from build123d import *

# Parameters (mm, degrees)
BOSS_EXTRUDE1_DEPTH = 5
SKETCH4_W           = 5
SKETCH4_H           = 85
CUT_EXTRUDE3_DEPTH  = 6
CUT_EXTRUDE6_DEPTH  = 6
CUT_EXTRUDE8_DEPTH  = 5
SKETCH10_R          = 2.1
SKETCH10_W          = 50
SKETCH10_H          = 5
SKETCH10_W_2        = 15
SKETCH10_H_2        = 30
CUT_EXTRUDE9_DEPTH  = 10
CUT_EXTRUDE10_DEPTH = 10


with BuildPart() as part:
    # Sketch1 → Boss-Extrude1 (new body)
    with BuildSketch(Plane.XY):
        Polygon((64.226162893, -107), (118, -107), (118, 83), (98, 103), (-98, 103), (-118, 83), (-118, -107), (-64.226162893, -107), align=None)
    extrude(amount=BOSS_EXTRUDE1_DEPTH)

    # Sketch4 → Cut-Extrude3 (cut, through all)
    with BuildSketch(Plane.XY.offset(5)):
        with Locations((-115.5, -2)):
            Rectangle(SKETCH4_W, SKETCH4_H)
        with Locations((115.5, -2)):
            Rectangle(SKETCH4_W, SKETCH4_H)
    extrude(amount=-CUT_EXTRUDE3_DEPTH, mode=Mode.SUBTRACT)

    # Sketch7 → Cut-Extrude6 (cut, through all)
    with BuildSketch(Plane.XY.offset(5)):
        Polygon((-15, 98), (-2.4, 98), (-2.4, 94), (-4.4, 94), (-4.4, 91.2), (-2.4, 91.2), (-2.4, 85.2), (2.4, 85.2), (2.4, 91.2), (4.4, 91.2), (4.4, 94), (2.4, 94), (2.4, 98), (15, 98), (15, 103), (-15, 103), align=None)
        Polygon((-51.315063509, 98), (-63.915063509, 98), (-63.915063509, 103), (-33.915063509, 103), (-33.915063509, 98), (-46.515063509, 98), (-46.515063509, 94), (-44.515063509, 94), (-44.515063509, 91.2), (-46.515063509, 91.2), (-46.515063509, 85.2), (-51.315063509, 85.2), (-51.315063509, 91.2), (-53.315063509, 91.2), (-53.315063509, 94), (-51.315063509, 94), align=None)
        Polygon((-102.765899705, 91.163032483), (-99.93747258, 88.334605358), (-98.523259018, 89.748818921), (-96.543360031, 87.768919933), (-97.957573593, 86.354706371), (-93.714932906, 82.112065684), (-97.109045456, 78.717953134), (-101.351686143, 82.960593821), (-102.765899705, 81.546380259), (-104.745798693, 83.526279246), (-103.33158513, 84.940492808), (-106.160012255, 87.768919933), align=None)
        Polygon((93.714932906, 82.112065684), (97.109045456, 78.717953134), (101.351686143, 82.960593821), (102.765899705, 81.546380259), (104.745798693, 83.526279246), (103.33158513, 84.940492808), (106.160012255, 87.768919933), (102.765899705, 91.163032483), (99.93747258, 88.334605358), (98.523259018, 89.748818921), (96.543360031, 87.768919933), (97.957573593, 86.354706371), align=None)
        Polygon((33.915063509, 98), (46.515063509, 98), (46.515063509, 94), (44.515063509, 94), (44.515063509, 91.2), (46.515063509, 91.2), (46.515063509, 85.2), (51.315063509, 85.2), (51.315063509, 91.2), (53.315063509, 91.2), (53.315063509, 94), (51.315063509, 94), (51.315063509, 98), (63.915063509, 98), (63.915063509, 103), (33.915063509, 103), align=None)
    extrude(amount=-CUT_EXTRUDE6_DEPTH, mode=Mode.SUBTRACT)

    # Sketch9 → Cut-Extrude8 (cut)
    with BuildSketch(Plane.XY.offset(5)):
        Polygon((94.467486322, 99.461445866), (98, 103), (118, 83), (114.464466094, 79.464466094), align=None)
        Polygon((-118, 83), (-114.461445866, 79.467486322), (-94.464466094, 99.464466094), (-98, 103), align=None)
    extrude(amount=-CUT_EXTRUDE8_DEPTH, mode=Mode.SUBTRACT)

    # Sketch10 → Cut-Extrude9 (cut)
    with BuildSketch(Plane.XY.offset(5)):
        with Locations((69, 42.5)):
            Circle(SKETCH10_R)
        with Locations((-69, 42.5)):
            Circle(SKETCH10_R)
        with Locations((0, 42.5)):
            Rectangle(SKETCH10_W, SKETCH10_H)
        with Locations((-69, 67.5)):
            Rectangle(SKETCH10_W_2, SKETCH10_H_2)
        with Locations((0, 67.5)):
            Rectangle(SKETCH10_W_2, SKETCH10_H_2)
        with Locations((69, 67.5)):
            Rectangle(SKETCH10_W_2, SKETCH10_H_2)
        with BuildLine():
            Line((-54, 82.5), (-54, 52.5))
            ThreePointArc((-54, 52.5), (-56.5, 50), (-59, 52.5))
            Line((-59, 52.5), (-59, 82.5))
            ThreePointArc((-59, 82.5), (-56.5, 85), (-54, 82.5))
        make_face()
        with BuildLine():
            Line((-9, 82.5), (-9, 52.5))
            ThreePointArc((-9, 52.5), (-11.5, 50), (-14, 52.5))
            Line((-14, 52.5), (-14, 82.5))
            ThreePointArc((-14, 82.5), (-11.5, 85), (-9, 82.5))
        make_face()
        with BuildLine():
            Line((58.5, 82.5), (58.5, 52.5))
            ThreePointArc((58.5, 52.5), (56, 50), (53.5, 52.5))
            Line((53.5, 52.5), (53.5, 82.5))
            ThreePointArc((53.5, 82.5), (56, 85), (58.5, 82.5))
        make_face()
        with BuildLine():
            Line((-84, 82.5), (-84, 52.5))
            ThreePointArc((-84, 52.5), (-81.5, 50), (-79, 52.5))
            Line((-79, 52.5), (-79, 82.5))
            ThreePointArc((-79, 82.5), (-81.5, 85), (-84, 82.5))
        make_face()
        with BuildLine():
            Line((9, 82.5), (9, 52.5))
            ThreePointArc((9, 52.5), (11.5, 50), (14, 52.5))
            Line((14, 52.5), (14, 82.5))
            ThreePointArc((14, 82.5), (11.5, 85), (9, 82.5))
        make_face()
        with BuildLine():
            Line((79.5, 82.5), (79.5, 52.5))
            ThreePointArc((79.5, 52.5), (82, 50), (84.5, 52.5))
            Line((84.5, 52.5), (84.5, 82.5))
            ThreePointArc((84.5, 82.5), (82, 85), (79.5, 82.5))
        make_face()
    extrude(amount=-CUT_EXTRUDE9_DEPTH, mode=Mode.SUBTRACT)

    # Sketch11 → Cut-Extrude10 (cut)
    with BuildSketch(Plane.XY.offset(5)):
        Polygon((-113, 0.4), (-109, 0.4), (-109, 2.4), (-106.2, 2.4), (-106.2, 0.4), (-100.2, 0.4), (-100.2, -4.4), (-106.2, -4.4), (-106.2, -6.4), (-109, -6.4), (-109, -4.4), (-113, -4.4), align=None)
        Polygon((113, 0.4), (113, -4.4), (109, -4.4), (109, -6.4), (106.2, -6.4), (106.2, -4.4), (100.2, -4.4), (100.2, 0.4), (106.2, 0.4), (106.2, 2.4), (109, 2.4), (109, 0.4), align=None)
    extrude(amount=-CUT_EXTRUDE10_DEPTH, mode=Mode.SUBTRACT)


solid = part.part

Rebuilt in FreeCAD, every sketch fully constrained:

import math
import FreeCAD as App
import Part
import Sketcher

V = App.Vector
Q = App.Units.Quantity


def add_polygon(sketch, points):
    """Adds a closed chain of lines whose ends are joined by coincident constraints."""
    first, n = sketch.GeometryCount, len(points)
    for a, b in zip(points, points[1:] + points[:1]):
        sketch.addGeometry(Part.LineSegment(App.Vector(*a, 0), App.Vector(*b, 0)), False)
    for i in range(n):
        sketch.addConstraint(Sketcher.Constraint("Coincident", first + i, 2, first + (i + 1) % n, 1))

doc = App.newDocument("Part")
params = doc.addObject("Spreadsheet::Sheet", "Params")
for row, (alias, value) in enumerate([
    ("sketch1_width", "196 mm"),
    ("sketch1_width2", "236 mm"),
    ("sketch1_height", "190 mm"),
    ("pad1_length", "5 mm"),
    ("sketch2_width", "5 mm"),
    ("sketch2_height", "85 mm"),
    ("sketch3_width", "2 mm"),
    ("sketch3_width2", "30 mm"),
    ("sketch3_height", "4 mm"),
    ("sketch3_height2", "6 mm"),
    ("sketch3_height3", "5 mm"),
    ("sketch4_length", "5.000002 mm"),
    ("sketch4_length2", "28.28 mm"),
    ("pocket3_length", "5 mm"),
    ("sketch5_diameter", "4.2 mm"),
    ("sketch5_radius", "2.5 mm"),
    ("sketch5_width", "50 mm"),
    ("sketch5_width2", "15 mm"),
    ("sketch5_height", "5 mm"),
    ("pocket4_length", "10 mm"),
    ("sketch6_width", "4 mm"),
    ("sketch6_width2", "6 mm"),
    ("sketch6_height", "2 mm"),
    ("sketch6_width3", "2.8 mm"),
    ("sketch6_height2", "4.8 mm"),
    ("pocket5_length", "10 mm"),
], start=1):
    params.set(f"A{row}", alias)
    params.set(f"B{row}", "=" + value)
    params.setAlias(f"B{row}", alias)

body = doc.addObject("PartDesign::Body", "Body")

sketch1 = doc.addObject("Sketcher::SketchObject", "Sketch")
body.addObject(sketch1)
sketch1.AttachmentSupport = (doc.XY_Plane, [""])
sketch1.MapMode = "FlatFace"
add_polygon(sketch1, [(118, -107), (118, 83), (98, 103), (-98, 103), (-118, 83), (-118, -107)])
sketch1.addConstraint([
    Sketcher.Constraint("Vertical", 0),
    Sketcher.Constraint("Horizontal", 2),
    Sketcher.Constraint("Vertical", 4),
    Sketcher.Constraint("Horizontal", 5),
    Sketcher.Constraint("Symmetric", 0, 2, 3, 2, -2),
    Sketcher.Constraint("Perpendicular", 1, 3),
    Sketcher.Constraint("Equal", 1, 3),
    Sketcher.Constraint("DistanceX", 2, 2, 2, 1, Q("196 mm")),
    Sketcher.Constraint("DistanceX", 5, 1, 5, 2, Q("236 mm")),
    Sketcher.Constraint("DistanceY", 0, 1, 0, 2, Q("190 mm")),
    Sketcher.Constraint("DistanceY", -1, 1, 0, 2, Q("83 mm")),
])
sketch1.setExpression("Constraints[13]", "Params.sketch1_width")
sketch1.setExpression("Constraints[14]", "Params.sketch1_width2")
sketch1.setExpression("Constraints[15]", "Params.sketch1_height")
pad1 = doc.addObject("PartDesign::Pad", "Pad")
body.addObject(pad1)
pad1.Profile = sketch1
pad1.setExpression("Length", "Params.pad1_length")

sketch2 = doc.addObject("Sketcher::SketchObject", "Sketch001")
body.addObject(sketch2)
sketch2.AttachmentSupport = (doc.XY_Plane, [""])
sketch2.MapMode = "FlatFace"
sketch2.AttachmentOffset = App.Placement(V(0, 0, 5), App.Rotation())
add_polygon(sketch2, [(-118, 40), (-118, -44), (-113, -44), (-113, 40)])
add_polygon(sketch2, [(113, 40), (113, -44), (118, -44), (118, 40)])
sketch2.addConstraint([
    Sketcher.Constraint("Vertical", 0),
    Sketcher.Constraint("Horizontal", 1),
    Sketcher.Constraint("Vertical", 2),
    Sketcher.Constraint("Horizontal", 3),
    Sketcher.Constraint("Vertical", 4),
    Sketcher.Constraint("Horizontal", 5),
    Sketcher.Constraint("Vertical", 6),
    Sketcher.Constraint("Horizontal", 7),
    Sketcher.Constraint("Symmetric", 1, 2, 4, 2, -2),
    Sketcher.Constraint("Symmetric", 3, 2, 6, 2, -2),
    Sketcher.Constraint("DistanceX", 1, 1, 1, 2, Q("5 mm")),
    Sketcher.Constraint("DistanceY", 0, 2, 0, 1, Q("85 mm")),
    Sketcher.Constraint("DistanceX", 0, 2, -1, 1, Q("118 mm")),
    Sketcher.Constraint("DistanceY", 0, 2, -1, 1, Q("44.5 mm")),
])
sketch2.setExpression("Constraints[18]", "Params.sketch2_width")
sketch2.setExpression("Constraints[19]", "Params.sketch2_height")
pocket1 = doc.addObject("PartDesign::Pocket", "Pocket")
body.addObject(pocket1)
pocket1.Profile = sketch2
pocket1.Type = "ThroughAll"

sketch3 = doc.addObject("Sketcher::SketchObject", "Sketch002")
body.addObject(sketch3)
sketch3.AttachmentSupport = (doc.XY_Plane, [""])
sketch3.MapMode = "FlatFace"
sketch3.AttachmentOffset = App.Placement(V(0, 0, 5), App.Rotation())
add_polygon(sketch3, [(-15, 98), (-2.4, 98), (-2.4, 94), (-4.4, 94), (-4.4, 91.2), (-2.4, 91.2), (-2.4, 85.2), (2.4, 85.2), (2.4, 91.2), (4.4, 91.2), (4.4, 94), (2.4, 94), (2.4, 98), (15, 98), (15, 103), (-15, 103)])
add_polygon(sketch3, [(-63.9, 98), (-51.3, 98), (-51.3, 94), (-53.3, 94), (-53.3, 91.2), (-51.3, 91.2), (-51.3, 85.2), (-46.5, 85.2), (-46.5, 91.2), (-44.5, 91.2), (-44.5, 94), (-46.5, 94), (-46.5, 98), (-33.9, 98), (-33.9, 103), (-63.9, 103)])
add_polygon(sketch3, [(-99.9, 88.3), (-102.8, 91.2), (-106.2, 87.8), (-103.3, 84.9), (-104.7, 83.5), (-102.8, 81.5), (-101.4, 83), (-97.1, 78.7), (-93.7, 82.1), (-98, 86.4), (-96.5, 87.8), (-98.5, 89.7)])
add_polygon(sketch3, [(93.7, 82.1), (97.1, 78.7), (101.4, 83), (102.8, 81.5), (104.7, 83.5), (103.3, 84.9), (106.2, 87.8), (102.8, 91.2), (99.9, 88.3), (98.5, 89.7), (96.5, 87.8), (98, 86.4)])
add_polygon(sketch3, [(33.9, 98), (46.5, 98), (46.5, 94), (44.5, 94), (44.5, 91.2), (46.5, 91.2), (46.5, 85.2), (51.3, 85.2), (51.3, 91.2), (53.3, 91.2), (53.3, 94), (51.3, 94), (51.3, 98), (63.9, 98), (63.9, 103), (33.9, 103)])
sketch3.addConstraint([
    Sketcher.Constraint("Horizontal", 0),
    Sketcher.Constraint("Vertical", 1),
    Sketcher.Constraint("Horizontal", 2),
    Sketcher.Constraint("Vertical", 3),
    Sketcher.Constraint("Horizontal", 4),
    Sketcher.Constraint("Vertical", 5),
    Sketcher.Constraint("Horizontal", 6),
    Sketcher.Constraint("Vertical", 7),
    Sketcher.Constraint("Horizontal", 8),
    Sketcher.Constraint("Vertical", 9),
    Sketcher.Constraint("Horizontal", 10),
    Sketcher.Constraint("Vertical", 11),
    Sketcher.Constraint("Horizontal", 12),
    Sketcher.Constraint("Vertical", 13),
    Sketcher.Constraint("Horizontal", 14),
    Sketcher.Constraint("Vertical", 15),
    Sketcher.Constraint("Horizontal", 16),
    Sketcher.Constraint("Vertical", 17),
    Sketcher.Constraint("Horizontal", 18),
    Sketcher.Constraint("Vertical", 19),
    Sketcher.Constraint("Horizontal", 20),
    Sketcher.Constraint("Vertical", 21),
    Sketcher.Constraint("Horizontal", 22),
    Sketcher.Constraint("Vertical", 23),
    Sketcher.Constraint("Horizontal", 24),
    Sketcher.Constraint("Vertical", 25),
    Sketcher.Constraint("Horizontal", 26),
    Sketcher.Constraint("Vertical", 27),
    Sketcher.Constraint("Horizontal", 28),
    Sketcher.Constraint("Vertical", 29),
    Sketcher.Constraint("Horizontal", 30),
    Sketcher.Constraint("Vertical", 31),
    Sketcher.Constraint("Horizontal", 56),
    Sketcher.Constraint("Vertical", 57),
    Sketcher.Constraint("Horizontal", 58),
    Sketcher.Constraint("Vertical", 59),
    Sketcher.Constraint("Horizontal", 60),
    Sketcher.Constraint("Vertical", 61),
    Sketcher.Constraint("Horizontal", 62),
    Sketcher.Constraint("Vertical", 63),
    Sketcher.Constraint("Horizontal", 64),
    Sketcher.Constraint("Vertical", 65),
    Sketcher.Constraint("Horizontal", 66),
    Sketcher.Constraint("Vertical", 67),
    Sketcher.Constraint("Horizontal", 68),
    Sketcher.Constraint("Vertical", 69),
    Sketcher.Constraint("Horizontal", 70),
    Sketcher.Constraint("Vertical", 71),
    Sketcher.Constraint("Symmetric", 4, 2, 7, 2, -2),
    Sketcher.Constraint("Symmetric", 2, 2, 9, 2, -2),
    Sketcher.Constraint("Symmetric", 0, 2, 11, 2, -2),
    Sketcher.Constraint("Symmetric", 38, 2, 44, 2, -2),
    Sketcher.Constraint("Symmetric", 37, 2, 45, 2, -2),
    Sketcher.Constraint("Symmetric", 36, 2, 46, 2, -2),
    Sketcher.Constraint("Symmetric", 35, 2, 47, 2, -2),
    Sketcher.Constraint("Symmetric", 34, 2, 48, 2, -2),
    Sketcher.Constraint("Symmetric", 33, 2, 49, 2, -2),
    Sketcher.Constraint("Symmetric", 32, 2, 50, 2, -2),
    Sketcher.Constraint("Symmetric", 43, 2, 51, 2, -2),
    Sketcher.Constraint("Symmetric", 42, 2, 52, 2, -2),
    Sketcher.Constraint("Symmetric", 41, 2, 53, 2, -2),
    Sketcher.Constraint("Symmetric", 40, 2, 54, 2, -2),
    Sketcher.Constraint("Symmetric", 39, 2, 55, 2, -2),
    Sketcher.Constraint("Symmetric", 27, 2, 56, 2, -2),
    Sketcher.Constraint("Symmetric", 25, 2, 58, 2, -2),
    Sketcher.Constraint("Symmetric", 23, 2, 60, 2, -2),
    Sketcher.Constraint("Symmetric", 21, 2, 62, 2, -2),
    Sketcher.Constraint("Symmetric", 19, 2, 64, 2, -2),
    Sketcher.Constraint("Symmetric", 17, 2, 66, 2, -2),
    Sketcher.Constraint("Symmetric", 31, 2, 68, 2, -2),
    Sketcher.Constraint("Symmetric", 29, 2, 70, 2, -2),
    Sketcher.Constraint("Perpendicular", 32, 33),
    Sketcher.Constraint("Perpendicular", 33, 34),
    Sketcher.Constraint("Perpendicular", 34, 35),
    Sketcher.Constraint("Perpendicular", 35, 36),
    Sketcher.Constraint("Perpendicular", 36, 37),
    Sketcher.Constraint("Perpendicular", 37, 38),
    Sketcher.Constraint("Perpendicular", 38, 39),
    Sketcher.Constraint("Perpendicular", 39, 40),
    Sketcher.Constraint("Perpendicular", 40, 41),
    Sketcher.Constraint("Perpendicular", 41, 42),
    Sketcher.Constraint("Perpendicular", 42, 43),
    Sketcher.Constraint("Perpendicular", 43, 44),
    Sketcher.Constraint("Horizontal", 15, 2, 16, 2),
    Sketcher.Constraint("Horizontal", 10, 2, 17, 2),
    Sketcher.Constraint("Horizontal", 8, 2, 19, 2),
    Sketcher.Constraint("Horizontal", 6, 2, 21, 2),
    Sketcher.Constraint("Horizontal", 20, 2, 23, 2),
    Sketcher.Constraint("Horizontal", 18, 2, 25, 2),
    Sketcher.Constraint("Horizontal", 16, 2, 27, 2),
    Sketcher.Constraint("Horizontal", 14, 2, 29, 2),
    Sketcher.Constraint("Horizontal", 33, 2, 41, 2),
    Sketcher.Constraint("Vertical", 1, 2, 4, 2),
    Sketcher.Constraint("Vertical", 17, 2, 20, 2),
    Sketcher.Constraint("Vertical", 23, 2, 26, 2),
    Sketcher.Constraint("Vertical", 32, 2, 36, 2),
    Sketcher.Constraint("Equal", 0, 12),
    Sketcher.Constraint("Equal", 12, 16),
    Sketcher.Constraint("Equal", 10, 18),
    Sketcher.Constraint("Equal", 6, 22),
    Sketcher.Constraint("Equal", 20, 24),
    Sketcher.Constraint("Equal", 16, 28),
    Sketcher.Constraint("Equal", 32, 34),
    Sketcher.Constraint("Equal", 35, 37),
    Sketcher.Constraint("Equal", 33, 39),
    Sketcher.Constraint("Equal", 38, 40),
    Sketcher.Constraint("DistanceX", 2, 2, 2, 1, Q("2 mm")),
    Sketcher.Constraint("DistanceX", 14, 2, 14, 1, Q("30 mm")),
    Sketcher.Constraint("DistanceY", 1, 2, 1, 1, Q("4 mm")),
    Sketcher.Constraint("DistanceY", 5, 2, 5, 1, Q("6 mm")),
    Sketcher.Constraint("DistanceY", 13, 1, 13, 2, Q("5 mm")),
    Sketcher.Constraint("Distance", 32, Q("4 mm")),
    Sketcher.Constraint("Distance", 35, Q("2 mm")),
    Sketcher.Constraint("Distance", 38, Q("6 mm")),
    Sketcher.Constraint("DistanceX", 0, 1, 0, 2, Q("12.6 mm")),
    Sketcher.Constraint("DistanceY", 3, 2, 3, 1, Q("2.8 mm")),
    Sketcher.Constraint("DistanceY", -1, 1, 0, 2, Q("98 mm")),
    Sketcher.Constraint("Distance", 33, Q("4.8 mm")),
    Sketcher.Constraint("DistanceX", 32, 2, -1, 1, Q("102.7659 mm")),
    Sketcher.Constraint("DistanceY", -1, 1, 33, 2, Q("87.76892 mm")),
    Sketcher.Constraint("DistanceX", 16, 2, -1, 1, Q("51.315064 mm")),
])
sketch3.setExpression("Constraints[178]", "Params.sketch3_width")
sketch3.setExpression("Constraints[179]", "Params.sketch3_width2")
sketch3.setExpression("Constraints[180]", "Params.sketch3_height")
sketch3.setExpression("Constraints[181]", "Params.sketch3_height2")
sketch3.setExpression("Constraints[182]", "Params.sketch3_height3")
pocket2 = doc.addObject("PartDesign::Pocket", "Pocket001")
body.addObject(pocket2)
pocket2.Profile = sketch3
pocket2.Type = "ThroughAll"

sketch4 = doc.addObject("Sketcher::SketchObject", "Sketch003")
body.addObject(sketch4)
sketch4.AttachmentSupport = (doc.XY_Plane, [""])
sketch4.MapMode = "FlatFace"
sketch4.AttachmentOffset = App.Placement(V(0, 0, 5), App.Rotation())
add_polygon(sketch4, [(98, 103), (94, 99), (114, 79), (118, 83)])
add_polygon(sketch4, [(-118, 83), (-114, 79), (-94, 99), (-98, 103)])
sketch4.addConstraint([
    Sketcher.Constraint("Symmetric", 3, 2, 6, 2, -2),
    Sketcher.Constraint("Symmetric", 2, 2, 7, 2, -2),
    Sketcher.Constraint("Perpendicular", 1, 2),
    Sketcher.Constraint("Perpendicular", 2, 3),
    Sketcher.Constraint("Perpendicular", 0, 4),
    Sketcher.Constraint("Perpendicular", 3, 5),
    Sketcher.Constraint("Perpendicular", 5, 6),
    Sketcher.Constraint("Perpendicular", 6, 7),
    Sketcher.Constraint("Equal", 2, 4),
    Sketcher.Constraint("Distance", 0, Q("5.000002 mm")),
    Sketcher.Constraint("DistanceX", -1, 1, 2, 2, Q("118 mm")),
    Sketcher.Constraint("DistanceY", -1, 1, 2, 2, Q("83 mm")),
    Sketcher.Constraint("DistanceX", -1, 1, 3, 2, Q("98 mm")),
    Sketcher.Constraint("Distance", 1, Q("28.28 mm")),
])
sketch4.setExpression("Constraints[17]", "Params.sketch4_length")
sketch4.setExpression("Constraints[21]", "Params.sketch4_length2")
pocket3 = doc.addObject("PartDesign::Pocket", "Pocket002")
body.addObject(pocket3)
pocket3.Profile = sketch4
pocket3.setExpression("Length", "Params.pocket3_length")

sketch5 = doc.addObject("Sketcher::SketchObject", "Sketch004")
body.addObject(sketch5)
sketch5.AttachmentSupport = (doc.XY_Plane, [""])
sketch5.MapMode = "FlatFace"
sketch5.AttachmentOffset = App.Placement(V(0, 0, 5), App.Rotation())
sketch5.addGeometry(Part.Circle(V(69, 42.5, 0), V(0, 0, 1), 2.1), False)
sketch5.addGeometry(Part.Circle(V(-69, 42.5, 0), V(0, 0, 1), 2.1), False)
add_polygon(sketch5, [(-25, 45), (-25, 40), (25, 40), (25, 45)])
add_polygon(sketch5, [(-76.5, 82.5), (-76.5, 52.5), (-61.5, 52.5), (-61.5, 82.5)])
add_polygon(sketch5, [(-7.5, 82.5), (-7.5, 52.5), (7.5, 52.5), (7.5, 82.5)])
add_polygon(sketch5, [(61.5, 82.5), (61.5, 52.5), (76.5, 52.5), (76.5, 82.5)])
sketch5.addGeometry(Part.LineSegment(V(-54, 52.5, 0), V(-54, 82.5, 0)), False)
sketch5.addGeometry(Part.ArcOfCircle(Part.Circle(V(-56.5, 82.5, 0), V(0, 0, 1), 2.5), math.radians(0), math.radians(180)), False)
sketch5.addGeometry(Part.LineSegment(V(-59, 82.5, 0), V(-59, 52.5, 0)), False)
sketch5.addGeometry(Part.ArcOfCircle(Part.Circle(V(-56.5, 52.5, 0), V(0, 0, 1), 2.5), math.radians(180), math.radians(360)), False)
sketch5.addGeometry(Part.LineSegment(V(-9, 52.5, 0), V(-9, 82.5, 0)), False)
sketch5.addGeometry(Part.ArcOfCircle(Part.Circle(V(-11.5, 82.5, 0), V(0, 0, 1), 2.5), math.radians(0), math.radians(180)), False)
sketch5.addGeometry(Part.LineSegment(V(-14, 82.5, 0), V(-14, 52.5, 0)), False)
sketch5.addGeometry(Part.ArcOfCircle(Part.Circle(V(-11.5, 52.5, 0), V(0, 0, 1), 2.5), math.radians(180), math.radians(360)), False)
sketch5.addGeometry(Part.LineSegment(V(58.5, 52.5, 0), V(58.5, 82.5, 0)), False)
sketch5.addGeometry(Part.ArcOfCircle(Part.Circle(V(56, 82.5, 0), V(0, 0, 1), 2.5), math.radians(0), math.radians(180)), False)
sketch5.addGeometry(Part.LineSegment(V(53.5, 82.5, 0), V(53.5, 52.5, 0)), False)
sketch5.addGeometry(Part.ArcOfCircle(Part.Circle(V(56, 52.5, 0), V(0, 0, 1), 2.5), math.radians(180), math.radians(360)), False)
sketch5.addGeometry(Part.LineSegment(V(-84, 82.5, 0), V(-84, 52.5, 0)), False)
sketch5.addGeometry(Part.ArcOfCircle(Part.Circle(V(-81.5, 52.5, 0), V(0, 0, 1), 2.5), math.radians(180), math.radians(360)), False)
sketch5.addGeometry(Part.LineSegment(V(-79, 52.5, 0), V(-79, 82.5, 0)), False)
sketch5.addGeometry(Part.ArcOfCircle(Part.Circle(V(-81.5, 82.5, 0), V(0, 0, 1), 2.5), math.radians(0), math.radians(180)), False)
sketch5.addGeometry(Part.LineSegment(V(9, 82.5, 0), V(9, 52.5, 0)), False)
sketch5.addGeometry(Part.ArcOfCircle(Part.Circle(V(11.5, 52.5, 0), V(0, 0, 1), 2.5), math.radians(180), math.radians(360)), False)
sketch5.addGeometry(Part.LineSegment(V(14, 52.5, 0), V(14, 82.5, 0)), False)
sketch5.addGeometry(Part.ArcOfCircle(Part.Circle(V(11.5, 82.5, 0), V(0, 0, 1), 2.5), math.radians(0), math.radians(180)), False)
sketch5.addGeometry(Part.LineSegment(V(79.5, 82.5, 0), V(79.5, 52.5, 0)), False)
sketch5.addGeometry(Part.ArcOfCircle(Part.Circle(V(82, 52.5, 0), V(0, 0, 1), 2.5), math.radians(180), math.radians(360)), False)
sketch5.addGeometry(Part.LineSegment(V(84.5, 52.5, 0), V(84.5, 82.5, 0)), False)
sketch5.addGeometry(Part.ArcOfCircle(Part.Circle(V(82, 82.5, 0), V(0, 0, 1), 2.5), math.radians(0), math.radians(180)), False)
sketch5.addConstraint([
    Sketcher.Constraint("Tangent", 18, 2, 19, 1),
    Sketcher.Constraint("Tangent", 19, 2, 20, 1),
    Sketcher.Constraint("Tangent", 20, 2, 21, 1),
    Sketcher.Constraint("Tangent", 21, 2, 18, 1),
    Sketcher.Constraint("Tangent", 22, 2, 23, 1),
    Sketcher.Constraint("Tangent", 23, 2, 24, 1),
    Sketcher.Constraint("Tangent", 24, 2, 25, 1),
    Sketcher.Constraint("Tangent", 25, 2, 22, 1),
    Sketcher.Constraint("Tangent", 26, 2, 27, 1),
    Sketcher.Constraint("Tangent", 27, 2, 28, 1),
    Sketcher.Constraint("Tangent", 28, 2, 29, 1),
    Sketcher.Constraint("Tangent", 29, 2, 26, 1),
    Sketcher.Constraint("Tangent", 30, 2, 31, 1),
    Sketcher.Constraint("Tangent", 31, 2, 32, 1),
    Sketcher.Constraint("Tangent", 32, 2, 33, 1),
    Sketcher.Constraint("Tangent", 33, 2, 30, 1),
    Sketcher.Constraint("Tangent", 34, 2, 35, 1),
    Sketcher.Constraint("Tangent", 35, 2, 36, 1),
    Sketcher.Constraint("Tangent", 36, 2, 37, 1),
    Sketcher.Constraint("Tangent", 37, 2, 34, 1),
    Sketcher.Constraint("Tangent", 38, 2, 39, 1),
    Sketcher.Constraint("Tangent", 39, 2, 40, 1),
    Sketcher.Constraint("Tangent", 40, 2, 41, 1),
    Sketcher.Constraint("Tangent", 41, 2, 38, 1),
    Sketcher.Constraint("Vertical", 2),
    Sketcher.Constraint("Horizontal", 3),
    Sketcher.Constraint("Vertical", 4),
    Sketcher.Constraint("Horizontal", 5),
    Sketcher.Constraint("Vertical", 6),
    Sketcher.Constraint("Horizontal", 7),
    Sketcher.Constraint("Vertical", 8),
    Sketcher.Constraint("Horizontal", 9),
    Sketcher.Constraint("Vertical", 10),
    Sketcher.Constraint("Horizontal", 11),
    Sketcher.Constraint("Vertical", 12),
    Sketcher.Constraint("Horizontal", 13),
    Sketcher.Constraint("Vertical", 14),
    Sketcher.Constraint("Horizontal", 15),
    Sketcher.Constraint("Vertical", 16),
    Sketcher.Constraint("Horizontal", 17),
    Sketcher.Constraint("Vertical", 18),
    Sketcher.Constraint("Vertical", 20),
    Sketcher.Constraint("Vertical", 22),
    Sketcher.Constraint("Vertical", 24),
    Sketcher.Constraint("Vertical", 26),
    Sketcher.Constraint("Vertical", 28),
    Sketcher.Constraint("Vertical", 30),
    Sketcher.Constraint("Vertical", 32),
    Sketcher.Constraint("Vertical", 34),
    Sketcher.Constraint("Vertical", 36),
    Sketcher.Constraint("Vertical", 38),
    Sketcher.Constraint("Vertical", 40),
    Sketcher.Constraint("Equal", 0, 1),
    Sketcher.Constraint("Equal", 21, 23),
    Sketcher.Constraint("Equal", 25, 27),
    Sketcher.Constraint("Equal", 29, 31),
    Sketcher.Constraint("Equal", 33, 35),
    Sketcher.Constraint("Equal", 37, 39),
    Sketcher.Constraint("Symmetric", 0, 3, 1, 3, -2),
    Sketcher.Constraint("Symmetric", 25, 3, 35, 3, -2),
    Sketcher.Constraint("Symmetric", 7, 2, 14, 2, -2),
    Sketcher.Constraint("Symmetric", 9, 2, 16, 2, -2),
    Sketcher.Constraint("Horizontal", 19, 3, 23, 3),
    Sketcher.Constraint("Horizontal", 21, 3, 25, 3),
    Sketcher.Constraint("Horizontal", 23, 3, 27, 3),
    Sketcher.Constraint("Horizontal", 25, 3, 29, 3),
    Sketcher.Constraint("Horizontal", 29, 3, 31, 3),
    Sketcher.Constraint("Horizontal", 27, 3, 33, 3),
    Sketcher.Constraint("Horizontal", 33, 3, 37, 3),
    Sketcher.Constraint("Horizontal", 35, 3, 39, 3),
    Sketcher.Constraint("Horizontal", 37, 3, 41, 3),
    Sketcher.Constraint("Horizontal", 39, 3, 6, 2),
    Sketcher.Constraint("Horizontal", 41, 3, 8, 2),
    Sketcher.Constraint("Horizontal", 7, 2, 10, 2),
    Sketcher.Constraint("Horizontal", 9, 2, 12, 2),
    Sketcher.Constraint("Equal", 9, 11),
    Sketcher.Constraint("Diameter", 0, Q("4.2 mm")),
    Sketcher.Constraint("Radius", 19, Q("2.5 mm")),
    Sketcher.Constraint("DistanceX", 3, 1, 3, 2, Q("50 mm")),
    Sketcher.Constraint("DistanceX", 7, 1, 7, 2, Q("15 mm")),
    Sketcher.Constraint("DistanceY", 2, 2, 2, 1, Q("5 mm")),
    Sketcher.Constraint("DistanceY", 6, 2, 6, 1, Q("30 mm")),
    Sketcher.Constraint("DistanceX", -1, 1, 0, 3, Q("69 mm")),
    Sketcher.Constraint("DistanceX", -1, 1, 27, 3, Q("56 mm")),
    Sketcher.Constraint("DistanceX", -1, 1, 39, 3, Q("82 mm")),
    Sketcher.Constraint("DistanceX", 2, 2, -1, 1, Q("25 mm")),
    Sketcher.Constraint("DistanceY", -1, 1, 2, 2, Q("40 mm")),
    Sketcher.Constraint("DistanceX", 18, 2, -1, 1, Q("54 mm")),
    Sketcher.Constraint("DistanceX", 22, 2, -1, 1, Q("9 mm")),
    Sketcher.Constraint("DistanceX", 30, 2, -1, 1, Q("84 mm")),
    Sketcher.Constraint("DistanceY", 1, 3, 19, 3, Q("40 mm")),
    Sketcher.Constraint("DistanceX", 31, 3, 6, 2, Q("5 mm")),
    Sketcher.Constraint("DistanceX", 25, 3, 10, 2, Q("4 mm")),
    Sketcher.Constraint("DistanceY", -1, 1, 0, 3, Q("42.5 mm")),
])
sketch5.setExpression("Constraints[92]", "Params.sketch5_diameter")
sketch5.setExpression("Constraints[93]", "Params.sketch5_radius")
sketch5.setExpression("Constraints[94]", "Params.sketch5_width")
sketch5.setExpression("Constraints[95]", "Params.sketch5_width2")
sketch5.setExpression("Constraints[96]", "Params.sketch5_height")
pocket4 = doc.addObject("PartDesign::Pocket", "Pocket003")
body.addObject(pocket4)
pocket4.Profile = sketch5
pocket4.setExpression("Length", "Params.pocket4_length")

sketch6 = doc.addObject("Sketcher::SketchObject", "Sketch005")
body.addObject(sketch6)
sketch6.AttachmentSupport = (doc.XY_Plane, [""])
sketch6.MapMode = "FlatFace"
sketch6.AttachmentOffset = App.Placement(V(0, 0, 5), App.Rotation())
add_polygon(sketch6, [(-109, 0.4), (-113, 0.4), (-113, -4.4), (-109, -4.4), (-109, -6.4), (-106.2, -6.4), (-106.2, -4.4), (-100.2, -4.4), (-100.2, 0.4), (-106.2, 0.4), (-106.2, 2.4), (-109, 2.4)])
add_polygon(sketch6, [(113, -4.4), (113, 0.4), (109, 0.4), (109, 2.4), (106.2, 2.4), (106.2, 0.4), (100.2, 0.4), (100.2, -4.4), (106.2, -4.4), (106.2, -6.4), (109, -6.4), (109, -4.4)])
sketch6.addConstraint([
    Sketcher.Constraint("Horizontal", 0),
    Sketcher.Constraint("Vertical", 1),
    Sketcher.Constraint("Horizontal", 2),
    Sketcher.Constraint("Vertical", 3),
    Sketcher.Constraint("Horizontal", 4),
    Sketcher.Constraint("Vertical", 5),
    Sketcher.Constraint("Horizontal", 6),
    Sketcher.Constraint("Vertical", 7),
    Sketcher.Constraint("Horizontal", 8),
    Sketcher.Constraint("Vertical", 9),
    Sketcher.Constraint("Horizontal", 10),
    Sketcher.Constraint("Vertical", 11),
    Sketcher.Constraint("Vertical", 12),
    Sketcher.Constraint("Horizontal", 13),
    Sketcher.Constraint("Vertical", 14),
    Sketcher.Constraint("Horizontal", 15),
    Sketcher.Constraint("Vertical", 16),
    Sketcher.Constraint("Horizontal", 17),
    Sketcher.Constraint("Vertical", 18),
    Sketcher.Constraint("Horizontal", 19),
    Sketcher.Constraint("Vertical", 20),
    Sketcher.Constraint("Horizontal", 21),
    Sketcher.Constraint("Vertical", 22),
    Sketcher.Constraint("Horizontal", 23),
    Sketcher.Constraint("Symmetric", 0, 2, 12, 2, -2),
    Sketcher.Constraint("Symmetric", 10, 2, 14, 2, -2),
    Sketcher.Constraint("Symmetric", 8, 2, 16, 2, -2),
    Sketcher.Constraint("Symmetric", 6, 2, 18, 2, -2),
    Sketcher.Constraint("Symmetric", 4, 2, 20, 2, -2),
    Sketcher.Constraint("Symmetric", 2, 2, 22, 2, -2),
    Sketcher.Constraint("Horizontal", 2, 2, 5, 2),
    Sketcher.Constraint("Horizontal", 0, 2, 7, 2),
    Sketcher.Constraint("Vertical", 5, 2, 8, 2),
    Sketcher.Constraint("Vertical", 3, 2, 10, 2),
    Sketcher.Constraint("Equal", 5, 9),
    Sketcher.Constraint("DistanceX", 0, 2, 0, 1, Q("4 mm")),
    Sketcher.Constraint("DistanceX", 6, 1, 6, 2, Q("6 mm")),
    Sketcher.Constraint("DistanceY", 3, 2, 3, 1, Q("2 mm")),
    Sketcher.Constraint("DistanceX", 4, 1, 4, 2, Q("2.8 mm")),
    Sketcher.Constraint("DistanceY", 1, 2, 1, 1, Q("4.8 mm")),
    Sketcher.Constraint("DistanceX", 0, 2, -1, 1, Q("113 mm")),
    Sketcher.Constraint("DistanceY", -1, 1, 0, 2, Q("0.4 mm")),
])
sketch6.setExpression("Constraints[59]", "Params.sketch6_width")
sketch6.setExpression("Constraints[60]", "Params.sketch6_width2")
sketch6.setExpression("Constraints[61]", "Params.sketch6_height")
sketch6.setExpression("Constraints[62]", "Params.sketch6_width3")
sketch6.setExpression("Constraints[63]", "Params.sketch6_height2")
pocket5 = doc.addObject("PartDesign::Pocket", "Pocket004")
body.addObject(pocket5)
pocket5.Profile = sketch6
pocket5.setExpression("Length", "Params.pocket5_length")

doc.recompute()
